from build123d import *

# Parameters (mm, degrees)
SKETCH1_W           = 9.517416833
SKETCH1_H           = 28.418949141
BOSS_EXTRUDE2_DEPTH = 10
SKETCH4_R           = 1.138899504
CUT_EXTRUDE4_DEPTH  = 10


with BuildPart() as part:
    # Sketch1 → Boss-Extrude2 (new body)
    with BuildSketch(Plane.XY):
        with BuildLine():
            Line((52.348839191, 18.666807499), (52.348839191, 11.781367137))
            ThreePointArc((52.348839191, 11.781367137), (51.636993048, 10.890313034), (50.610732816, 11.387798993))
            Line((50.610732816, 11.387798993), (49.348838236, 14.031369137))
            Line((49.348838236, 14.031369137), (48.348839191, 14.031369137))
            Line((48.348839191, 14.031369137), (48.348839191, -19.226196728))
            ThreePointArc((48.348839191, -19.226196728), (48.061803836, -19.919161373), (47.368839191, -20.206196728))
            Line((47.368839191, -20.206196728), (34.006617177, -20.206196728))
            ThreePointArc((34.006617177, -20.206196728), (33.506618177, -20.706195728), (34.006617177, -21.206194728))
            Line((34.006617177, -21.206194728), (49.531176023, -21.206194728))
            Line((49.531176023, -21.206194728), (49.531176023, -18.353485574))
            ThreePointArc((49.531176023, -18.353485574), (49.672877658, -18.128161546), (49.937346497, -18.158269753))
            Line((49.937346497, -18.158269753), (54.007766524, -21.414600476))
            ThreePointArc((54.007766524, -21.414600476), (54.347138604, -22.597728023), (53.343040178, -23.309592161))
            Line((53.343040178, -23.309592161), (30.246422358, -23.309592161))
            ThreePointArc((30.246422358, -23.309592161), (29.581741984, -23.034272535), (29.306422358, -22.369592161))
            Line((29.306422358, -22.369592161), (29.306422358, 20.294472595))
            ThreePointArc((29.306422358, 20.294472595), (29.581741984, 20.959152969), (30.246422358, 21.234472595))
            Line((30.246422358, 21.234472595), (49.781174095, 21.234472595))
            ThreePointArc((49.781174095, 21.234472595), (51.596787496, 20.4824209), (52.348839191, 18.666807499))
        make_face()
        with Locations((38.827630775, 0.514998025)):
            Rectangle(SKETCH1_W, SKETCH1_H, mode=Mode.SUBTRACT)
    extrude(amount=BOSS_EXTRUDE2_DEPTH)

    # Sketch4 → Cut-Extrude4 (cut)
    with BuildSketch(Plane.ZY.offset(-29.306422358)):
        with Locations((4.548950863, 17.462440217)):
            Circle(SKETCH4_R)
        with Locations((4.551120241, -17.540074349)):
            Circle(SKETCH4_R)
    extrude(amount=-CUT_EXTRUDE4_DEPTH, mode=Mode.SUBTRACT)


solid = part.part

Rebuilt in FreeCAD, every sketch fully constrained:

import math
import FreeCAD as App
import Part
import Sketcher

V = App.Vector
Q = App.Units.Quantity

doc = App.newDocument("Part")
body = doc.addObject("PartDesign::Body", "Body")

sketch1 = body.newObject("Sketcher::SketchObject", "Sketch")
sketch1.AttachmentSupport = (doc.getObject("XY_Plane"), [""])
sketch1.MapMode = "FlatFace"
sketch1.addGeometry(Part.LineSegment(V(52.35, 11.78, 0), V(52.35, 18.67, 0)), False)
sketch1.addGeometry(Part.ArcOfCircle(Part.Circle(V(49.78, 18.67, 0), V(0, 0, 1), 2.57), math.radians(0), math.radians(90)), False)
sketch1.addGeometry(Part.LineSegment(V(49.78, 21.23, 0), V(30.25, 21.23, 0)), False)
sketch1.addGeometry(Part.ArcOfCircle(Part.Circle(V(30.25, 20.29, 0), V(0, 0, 1), 0.94), math.radians(90), math.radians(180)), False)
sketch1.addGeometry(Part.LineSegment(V(29.31, 20.29, 0), V(29.31, -22.37, 0)), False)
sketch1.addGeometry(Part.ArcOfCircle(Part.Circle(V(30.25, -22.37, 0), V(0, 0, 1), 0.94), math.radians(-180), math.radians(-90)), False)
sketch1.addGeometry(Part.LineSegment(V(30.25, -23.31, 0), V(53.34, -23.31, 0)), False)
sketch1.addGeometry(Part.ArcOfCircle(Part.Circle(V(53.34, -22.25, 0), V(0, 0, 1), 1.06), math.radians(-90), math.radians(51)), False)
sketch1.addGeometry(Part.LineSegment(V(54.01, -21.41, 0), V(49.94, -18.16, 0)), False)
sketch1.addGeometry(Part.ArcOfCircle(Part.Circle(V(49.78, -18.35, 0), V(0, 0, 1), 0.25), math.radians(51), math.radians(180)), False)
sketch1.addGeometry(Part.LineSegment(V(49.53, -18.35, 0), V(49.53, -21.21, 0)), False)
sketch1.addGeometry(Part.LineSegment(V(49.53, -21.21, 0), V(34.01, -21.21, 0)), False)
sketch1.addGeometry(Part.ArcOfCircle(Part.Circle(V(34.01, -20.71, 0), V(0, 0, 1), 0.5), math.radians(90), math.radians(270)), False)
sketch1.addGeometry(Part.LineSegment(V(34.01, -20.21, 0), V(47.37, -20.21, 0)), False)
sketch1.addGeometry(Part.ArcOfCircle(Part.Circle(V(47.37, -19.23, 0), V(0, 0, 1), 0.98), math.radians(-90), math.radians(0)), False)
sketch1.addGeometry(Part.LineSegment(V(48.35, -19.23, 0), V(48.35, 14.03, 0)), False)
sketch1.addGeometry(Part.LineSegment(V(48.35, 14.03, 0), V(49.35, 14.03, 0)), False)
sketch1.addGeometry(Part.LineSegment(V(49.35, 14.03, 0), V(50.61, 11.39, 0)), False)
sketch1.addGeometry(Part.ArcOfCircle(Part.Circle(V(51.44, 11.78, 0), V(0, 0, 1), 0.91), math.radians(-154), math.radians(0)), False)
sketch1.addGeometry(Part.LineSegment(V(34.07, -13.69, 0), V(34.07, 14.72, 0)), False)
sketch1.addGeometry(Part.LineSegment(V(34.07, 14.72, 0), V(43.59, 14.72, 0)), False)
sketch1.addGeometry(Part.LineSegment(V(43.59, 14.72, 0), V(43.59, -13.69, 0)), False)
sketch1.addGeometry(Part.LineSegment(V(43.59, -13.69, 0), V(34.07, -13.69, 0)), False)
sketch1.addConstraint(Sketcher.Constraint("Tangent", 0, 2, 1, 1))
sketch1.addConstraint(Sketcher.Constraint("Tangent", 1, 2, 2, 1))
sketch1.addConstraint(Sketcher.Constraint("Tangent", 2, 2, 3, 1))
sketch1.addConstraint(Sketcher.Constraint("Tangent", 3, 2, 4, 1))
sketch1.addConstraint(Sketcher.Constraint("Tangent", 4, 2, 5, 1))
sketch1.addConstraint(Sketcher.Constraint("Tangent", 5, 2, 6, 1))
sketch1.addConstraint(Sketcher.Constraint("Tangent", 6, 2, 7, 1))
sketch1.addConstraint(Sketcher.Constraint("Tangent", 7, 2, 8, 1))
sketch1.addConstraint(Sketcher.Constraint("Tangent", 8, 2, 9, 1))
sketch1.addConstraint(Sketcher.Constraint("Tangent", 9, 2, 10, 1))
sketch1.addConstraint(Sketcher.Constraint("Coincident", 10, 2, 11, 1))
sketch1.addConstraint(Sketcher.Constraint("Tangent", 11, 2, 12, 2))
sketch1.addConstraint(Sketcher.Constraint("Tangent", 12, 1, 13, 1))
sketch1.addConstraint(Sketcher.Constraint("Tangent", 13, 2, 14, 1))
sketch1.addConstraint(Sketcher.Constraint("Tangent", 14, 2, 15, 1))
sketch1.addConstraint(Sketcher.Constraint("Coincident", 15, 2, 16, 1))
sketch1.addConstraint(Sketcher.Constraint("Coincident", 16, 2, 17, 1))
sketch1.addConstraint(Sketcher.Constraint("Tangent", 17, 2, 18, 1))
sketch1.addConstraint(Sketcher.Constraint("Tangent", 18, 2, 0, 1))
sketch1.addConstraint(Sketcher.Constraint("Coincident", 19, 2, 20, 1))
sketch1.addConstraint(Sketcher.Constraint("Coincident", 20, 2, 21, 1))
sketch1.addConstraint(Sketcher.Constraint("Coincident", 21, 2, 22, 1))
sketch1.addConstraint(Sketcher.Constraint("Coincident", 22, 2, 19, 1))
sketch1.addConstraint(Sketcher.Constraint("Vertical", 0))
sketch1.addConstraint(Sketcher.Constraint("Horizontal", 2))
sketch1.addConstraint(Sketcher.Constraint("Vertical", 4))
sketch1.addConstraint(Sketcher.Constraint("Horizontal", 6))
sketch1.addConstraint(Sketcher.Constraint("Vertical", 10))
sketch1.addConstraint(Sketcher.Constraint("Horizontal", 11))
sketch1.addConstraint(Sketcher.Constraint("Horizontal", 13))
sketch1.addConstraint(Sketcher.Constraint("Vertical", 15))
sketch1.addConstraint(Sketcher.Constraint("Horizontal", 16))
sketch1.addConstraint(Sketcher.Constraint("Vertical", 19))
sketch1.addConstraint(Sketcher.Constraint("Horizontal", 20))
sketch1.addConstraint(Sketcher.Constraint("Vertical", 21))
sketch1.addConstraint(Sketcher.Constraint("Horizontal", 22))
sketch1.addConstraint(Sketcher.Constraint("Equal", 3, 5))
sketch1.addConstraint(Sketcher.Constraint("Vertical", 1, 3, 9, 3))
sketch1.addConstraint(Sketcher.Constraint("Radius", 12, Q("0.499999 mm")))
sketch1.addConstraint(Sketcher.Constraint("DistanceX", 16, 1, 16, 2, Q("0.999999 mm")))
sketch1.addConstraint(Sketcher.Constraint("Radius", 3, Q("0.94 mm")))
sketch1.addConstraint(Sketcher.Constraint("Radius", 9, Q("0.249998 mm")))
sketch1.addConstraint(Sketcher.Constraint("Radius", 14, Q("0.98 mm")))
sketch1.addConstraint(Sketcher.Constraint("DistanceX", 15, 2, 0, 2, Q("4 mm")))
sketch1.addConstraint(Sketcher.Constraint("Radius", 18, Q("0.913612 mm")))
sketch1.addConstraint(Sketcher.Constraint("DistanceY", 19, 2, 3, 3, Q("5.57 mm")))
sketch1.addConstraint(Sketcher.Constraint("Radius", 1, Q("2.567665 mm")))
sketch1.addConstraint(Sketcher.Constraint("Radius", 7, Q("1.064082 mm")))
sketch1.addConstraint(Sketcher.Constraint("DistanceX", 2, 2, 2, 1, Q("19.534752 mm")))
sketch1.addConstraint(Sketcher.Constraint("DistanceX", 11, 2, 11, 1, Q("15.524559 mm")))
sketch1.addConstraint(Sketcher.Constraint("DistanceY", 0, 1, 0, 2, Q("6.88544 mm")))
sketch1.addConstraint(Sketcher.Constraint("DistanceY", 10, 2, 10, 1, Q("2.852709 mm")))
sketch1.addConstraint(Sketcher.Constraint("DistanceY", 19, 1, 19, 2, Q("28.418949 mm")))
sketch1.addConstraint(Sketcher.Constraint("DistanceY", 7, 2, -1, 1, Q("21.4146 mm")))
sketch1.addConstraint(Sketcher.Constraint("DistanceY", -1, 1, 17, 2, Q("11.387799 mm")))
sketch1.addConstraint(Sketcher.Constraint("DistanceY", 5, 3, 1, 3, Q("41.0364 mm")))
sketch1.addConstraint(Sketcher.Constraint("DistanceX", 14, 3, 7, 3, Q("5.974201 mm")))
sketch1.addConstraint(Sketcher.Constraint("DistanceX", 3, 3, 19, 2, Q("3.8225 mm")))
sketch1.addConstraint(Sketcher.Constraint("DistanceX", 20, 2, 15, 2, Q("4.7625 mm")))
sketch1.addConstraint(Sketcher.Constraint("DistanceY", 15, 1, 15, 2, Q("33.257566 mm")))
sketch1.addConstraint(Sketcher.Constraint("DistanceX", -1, 1, 7, 3, Q("53.34304 mm")))
pad1 = body.newObject("PartDesign::Pad", "Pad")
pad1.Profile = sketch1
pad1.Length = 10

sketch2 = body.newObject("Sketcher::SketchObject", "Sketch001")
sketch2.AttachmentSupport = (doc.getObject("YZ_Plane"), [""])
sketch2.MapMode = "FlatFace"
sketch2.AttachmentOffset = App.Placement(V(0, 0, 29.306422), App.Rotation())
sketch2.addGeometry(Part.Circle(V(17.5, 4.5, 0), V(0, 0, 1), 1.1), False)
sketch2.addGeometry(Part.Circle(V(-17.5, 4.6, 0), V(0, 0, 1), 1.1), False)
sketch2.addConstraint(Sketcher.Constraint("Equal", 0, 1))
sketch2.addConstraint(Sketcher.Constraint("Diameter", 0, Q("2.277799 mm")))
sketch2.addConstraint(Sketcher.Constraint("DistanceX", -1, 1, 0, 3, Q("17.46244 mm")))
sketch2.addConstraint(Sketcher.Constraint("DistanceY", -1, 1, 0, 3, Q("4.548951 mm")))
sketch2.addConstraint(Sketcher.Constraint("DistanceY", -1, 1, 1, 3, Q("4.55112 mm")))
sketch2.addConstraint(Sketcher.Constraint("DistanceX", 1, 3, -1, 1, Q("17.540074 mm")))
pocket1 = body.newObject("PartDesign::Pocket", "Pocket")
pocket1.Profile = sketch2
pocket1.Length = 10
pocket1.Reversed = True

doc.recompute()
